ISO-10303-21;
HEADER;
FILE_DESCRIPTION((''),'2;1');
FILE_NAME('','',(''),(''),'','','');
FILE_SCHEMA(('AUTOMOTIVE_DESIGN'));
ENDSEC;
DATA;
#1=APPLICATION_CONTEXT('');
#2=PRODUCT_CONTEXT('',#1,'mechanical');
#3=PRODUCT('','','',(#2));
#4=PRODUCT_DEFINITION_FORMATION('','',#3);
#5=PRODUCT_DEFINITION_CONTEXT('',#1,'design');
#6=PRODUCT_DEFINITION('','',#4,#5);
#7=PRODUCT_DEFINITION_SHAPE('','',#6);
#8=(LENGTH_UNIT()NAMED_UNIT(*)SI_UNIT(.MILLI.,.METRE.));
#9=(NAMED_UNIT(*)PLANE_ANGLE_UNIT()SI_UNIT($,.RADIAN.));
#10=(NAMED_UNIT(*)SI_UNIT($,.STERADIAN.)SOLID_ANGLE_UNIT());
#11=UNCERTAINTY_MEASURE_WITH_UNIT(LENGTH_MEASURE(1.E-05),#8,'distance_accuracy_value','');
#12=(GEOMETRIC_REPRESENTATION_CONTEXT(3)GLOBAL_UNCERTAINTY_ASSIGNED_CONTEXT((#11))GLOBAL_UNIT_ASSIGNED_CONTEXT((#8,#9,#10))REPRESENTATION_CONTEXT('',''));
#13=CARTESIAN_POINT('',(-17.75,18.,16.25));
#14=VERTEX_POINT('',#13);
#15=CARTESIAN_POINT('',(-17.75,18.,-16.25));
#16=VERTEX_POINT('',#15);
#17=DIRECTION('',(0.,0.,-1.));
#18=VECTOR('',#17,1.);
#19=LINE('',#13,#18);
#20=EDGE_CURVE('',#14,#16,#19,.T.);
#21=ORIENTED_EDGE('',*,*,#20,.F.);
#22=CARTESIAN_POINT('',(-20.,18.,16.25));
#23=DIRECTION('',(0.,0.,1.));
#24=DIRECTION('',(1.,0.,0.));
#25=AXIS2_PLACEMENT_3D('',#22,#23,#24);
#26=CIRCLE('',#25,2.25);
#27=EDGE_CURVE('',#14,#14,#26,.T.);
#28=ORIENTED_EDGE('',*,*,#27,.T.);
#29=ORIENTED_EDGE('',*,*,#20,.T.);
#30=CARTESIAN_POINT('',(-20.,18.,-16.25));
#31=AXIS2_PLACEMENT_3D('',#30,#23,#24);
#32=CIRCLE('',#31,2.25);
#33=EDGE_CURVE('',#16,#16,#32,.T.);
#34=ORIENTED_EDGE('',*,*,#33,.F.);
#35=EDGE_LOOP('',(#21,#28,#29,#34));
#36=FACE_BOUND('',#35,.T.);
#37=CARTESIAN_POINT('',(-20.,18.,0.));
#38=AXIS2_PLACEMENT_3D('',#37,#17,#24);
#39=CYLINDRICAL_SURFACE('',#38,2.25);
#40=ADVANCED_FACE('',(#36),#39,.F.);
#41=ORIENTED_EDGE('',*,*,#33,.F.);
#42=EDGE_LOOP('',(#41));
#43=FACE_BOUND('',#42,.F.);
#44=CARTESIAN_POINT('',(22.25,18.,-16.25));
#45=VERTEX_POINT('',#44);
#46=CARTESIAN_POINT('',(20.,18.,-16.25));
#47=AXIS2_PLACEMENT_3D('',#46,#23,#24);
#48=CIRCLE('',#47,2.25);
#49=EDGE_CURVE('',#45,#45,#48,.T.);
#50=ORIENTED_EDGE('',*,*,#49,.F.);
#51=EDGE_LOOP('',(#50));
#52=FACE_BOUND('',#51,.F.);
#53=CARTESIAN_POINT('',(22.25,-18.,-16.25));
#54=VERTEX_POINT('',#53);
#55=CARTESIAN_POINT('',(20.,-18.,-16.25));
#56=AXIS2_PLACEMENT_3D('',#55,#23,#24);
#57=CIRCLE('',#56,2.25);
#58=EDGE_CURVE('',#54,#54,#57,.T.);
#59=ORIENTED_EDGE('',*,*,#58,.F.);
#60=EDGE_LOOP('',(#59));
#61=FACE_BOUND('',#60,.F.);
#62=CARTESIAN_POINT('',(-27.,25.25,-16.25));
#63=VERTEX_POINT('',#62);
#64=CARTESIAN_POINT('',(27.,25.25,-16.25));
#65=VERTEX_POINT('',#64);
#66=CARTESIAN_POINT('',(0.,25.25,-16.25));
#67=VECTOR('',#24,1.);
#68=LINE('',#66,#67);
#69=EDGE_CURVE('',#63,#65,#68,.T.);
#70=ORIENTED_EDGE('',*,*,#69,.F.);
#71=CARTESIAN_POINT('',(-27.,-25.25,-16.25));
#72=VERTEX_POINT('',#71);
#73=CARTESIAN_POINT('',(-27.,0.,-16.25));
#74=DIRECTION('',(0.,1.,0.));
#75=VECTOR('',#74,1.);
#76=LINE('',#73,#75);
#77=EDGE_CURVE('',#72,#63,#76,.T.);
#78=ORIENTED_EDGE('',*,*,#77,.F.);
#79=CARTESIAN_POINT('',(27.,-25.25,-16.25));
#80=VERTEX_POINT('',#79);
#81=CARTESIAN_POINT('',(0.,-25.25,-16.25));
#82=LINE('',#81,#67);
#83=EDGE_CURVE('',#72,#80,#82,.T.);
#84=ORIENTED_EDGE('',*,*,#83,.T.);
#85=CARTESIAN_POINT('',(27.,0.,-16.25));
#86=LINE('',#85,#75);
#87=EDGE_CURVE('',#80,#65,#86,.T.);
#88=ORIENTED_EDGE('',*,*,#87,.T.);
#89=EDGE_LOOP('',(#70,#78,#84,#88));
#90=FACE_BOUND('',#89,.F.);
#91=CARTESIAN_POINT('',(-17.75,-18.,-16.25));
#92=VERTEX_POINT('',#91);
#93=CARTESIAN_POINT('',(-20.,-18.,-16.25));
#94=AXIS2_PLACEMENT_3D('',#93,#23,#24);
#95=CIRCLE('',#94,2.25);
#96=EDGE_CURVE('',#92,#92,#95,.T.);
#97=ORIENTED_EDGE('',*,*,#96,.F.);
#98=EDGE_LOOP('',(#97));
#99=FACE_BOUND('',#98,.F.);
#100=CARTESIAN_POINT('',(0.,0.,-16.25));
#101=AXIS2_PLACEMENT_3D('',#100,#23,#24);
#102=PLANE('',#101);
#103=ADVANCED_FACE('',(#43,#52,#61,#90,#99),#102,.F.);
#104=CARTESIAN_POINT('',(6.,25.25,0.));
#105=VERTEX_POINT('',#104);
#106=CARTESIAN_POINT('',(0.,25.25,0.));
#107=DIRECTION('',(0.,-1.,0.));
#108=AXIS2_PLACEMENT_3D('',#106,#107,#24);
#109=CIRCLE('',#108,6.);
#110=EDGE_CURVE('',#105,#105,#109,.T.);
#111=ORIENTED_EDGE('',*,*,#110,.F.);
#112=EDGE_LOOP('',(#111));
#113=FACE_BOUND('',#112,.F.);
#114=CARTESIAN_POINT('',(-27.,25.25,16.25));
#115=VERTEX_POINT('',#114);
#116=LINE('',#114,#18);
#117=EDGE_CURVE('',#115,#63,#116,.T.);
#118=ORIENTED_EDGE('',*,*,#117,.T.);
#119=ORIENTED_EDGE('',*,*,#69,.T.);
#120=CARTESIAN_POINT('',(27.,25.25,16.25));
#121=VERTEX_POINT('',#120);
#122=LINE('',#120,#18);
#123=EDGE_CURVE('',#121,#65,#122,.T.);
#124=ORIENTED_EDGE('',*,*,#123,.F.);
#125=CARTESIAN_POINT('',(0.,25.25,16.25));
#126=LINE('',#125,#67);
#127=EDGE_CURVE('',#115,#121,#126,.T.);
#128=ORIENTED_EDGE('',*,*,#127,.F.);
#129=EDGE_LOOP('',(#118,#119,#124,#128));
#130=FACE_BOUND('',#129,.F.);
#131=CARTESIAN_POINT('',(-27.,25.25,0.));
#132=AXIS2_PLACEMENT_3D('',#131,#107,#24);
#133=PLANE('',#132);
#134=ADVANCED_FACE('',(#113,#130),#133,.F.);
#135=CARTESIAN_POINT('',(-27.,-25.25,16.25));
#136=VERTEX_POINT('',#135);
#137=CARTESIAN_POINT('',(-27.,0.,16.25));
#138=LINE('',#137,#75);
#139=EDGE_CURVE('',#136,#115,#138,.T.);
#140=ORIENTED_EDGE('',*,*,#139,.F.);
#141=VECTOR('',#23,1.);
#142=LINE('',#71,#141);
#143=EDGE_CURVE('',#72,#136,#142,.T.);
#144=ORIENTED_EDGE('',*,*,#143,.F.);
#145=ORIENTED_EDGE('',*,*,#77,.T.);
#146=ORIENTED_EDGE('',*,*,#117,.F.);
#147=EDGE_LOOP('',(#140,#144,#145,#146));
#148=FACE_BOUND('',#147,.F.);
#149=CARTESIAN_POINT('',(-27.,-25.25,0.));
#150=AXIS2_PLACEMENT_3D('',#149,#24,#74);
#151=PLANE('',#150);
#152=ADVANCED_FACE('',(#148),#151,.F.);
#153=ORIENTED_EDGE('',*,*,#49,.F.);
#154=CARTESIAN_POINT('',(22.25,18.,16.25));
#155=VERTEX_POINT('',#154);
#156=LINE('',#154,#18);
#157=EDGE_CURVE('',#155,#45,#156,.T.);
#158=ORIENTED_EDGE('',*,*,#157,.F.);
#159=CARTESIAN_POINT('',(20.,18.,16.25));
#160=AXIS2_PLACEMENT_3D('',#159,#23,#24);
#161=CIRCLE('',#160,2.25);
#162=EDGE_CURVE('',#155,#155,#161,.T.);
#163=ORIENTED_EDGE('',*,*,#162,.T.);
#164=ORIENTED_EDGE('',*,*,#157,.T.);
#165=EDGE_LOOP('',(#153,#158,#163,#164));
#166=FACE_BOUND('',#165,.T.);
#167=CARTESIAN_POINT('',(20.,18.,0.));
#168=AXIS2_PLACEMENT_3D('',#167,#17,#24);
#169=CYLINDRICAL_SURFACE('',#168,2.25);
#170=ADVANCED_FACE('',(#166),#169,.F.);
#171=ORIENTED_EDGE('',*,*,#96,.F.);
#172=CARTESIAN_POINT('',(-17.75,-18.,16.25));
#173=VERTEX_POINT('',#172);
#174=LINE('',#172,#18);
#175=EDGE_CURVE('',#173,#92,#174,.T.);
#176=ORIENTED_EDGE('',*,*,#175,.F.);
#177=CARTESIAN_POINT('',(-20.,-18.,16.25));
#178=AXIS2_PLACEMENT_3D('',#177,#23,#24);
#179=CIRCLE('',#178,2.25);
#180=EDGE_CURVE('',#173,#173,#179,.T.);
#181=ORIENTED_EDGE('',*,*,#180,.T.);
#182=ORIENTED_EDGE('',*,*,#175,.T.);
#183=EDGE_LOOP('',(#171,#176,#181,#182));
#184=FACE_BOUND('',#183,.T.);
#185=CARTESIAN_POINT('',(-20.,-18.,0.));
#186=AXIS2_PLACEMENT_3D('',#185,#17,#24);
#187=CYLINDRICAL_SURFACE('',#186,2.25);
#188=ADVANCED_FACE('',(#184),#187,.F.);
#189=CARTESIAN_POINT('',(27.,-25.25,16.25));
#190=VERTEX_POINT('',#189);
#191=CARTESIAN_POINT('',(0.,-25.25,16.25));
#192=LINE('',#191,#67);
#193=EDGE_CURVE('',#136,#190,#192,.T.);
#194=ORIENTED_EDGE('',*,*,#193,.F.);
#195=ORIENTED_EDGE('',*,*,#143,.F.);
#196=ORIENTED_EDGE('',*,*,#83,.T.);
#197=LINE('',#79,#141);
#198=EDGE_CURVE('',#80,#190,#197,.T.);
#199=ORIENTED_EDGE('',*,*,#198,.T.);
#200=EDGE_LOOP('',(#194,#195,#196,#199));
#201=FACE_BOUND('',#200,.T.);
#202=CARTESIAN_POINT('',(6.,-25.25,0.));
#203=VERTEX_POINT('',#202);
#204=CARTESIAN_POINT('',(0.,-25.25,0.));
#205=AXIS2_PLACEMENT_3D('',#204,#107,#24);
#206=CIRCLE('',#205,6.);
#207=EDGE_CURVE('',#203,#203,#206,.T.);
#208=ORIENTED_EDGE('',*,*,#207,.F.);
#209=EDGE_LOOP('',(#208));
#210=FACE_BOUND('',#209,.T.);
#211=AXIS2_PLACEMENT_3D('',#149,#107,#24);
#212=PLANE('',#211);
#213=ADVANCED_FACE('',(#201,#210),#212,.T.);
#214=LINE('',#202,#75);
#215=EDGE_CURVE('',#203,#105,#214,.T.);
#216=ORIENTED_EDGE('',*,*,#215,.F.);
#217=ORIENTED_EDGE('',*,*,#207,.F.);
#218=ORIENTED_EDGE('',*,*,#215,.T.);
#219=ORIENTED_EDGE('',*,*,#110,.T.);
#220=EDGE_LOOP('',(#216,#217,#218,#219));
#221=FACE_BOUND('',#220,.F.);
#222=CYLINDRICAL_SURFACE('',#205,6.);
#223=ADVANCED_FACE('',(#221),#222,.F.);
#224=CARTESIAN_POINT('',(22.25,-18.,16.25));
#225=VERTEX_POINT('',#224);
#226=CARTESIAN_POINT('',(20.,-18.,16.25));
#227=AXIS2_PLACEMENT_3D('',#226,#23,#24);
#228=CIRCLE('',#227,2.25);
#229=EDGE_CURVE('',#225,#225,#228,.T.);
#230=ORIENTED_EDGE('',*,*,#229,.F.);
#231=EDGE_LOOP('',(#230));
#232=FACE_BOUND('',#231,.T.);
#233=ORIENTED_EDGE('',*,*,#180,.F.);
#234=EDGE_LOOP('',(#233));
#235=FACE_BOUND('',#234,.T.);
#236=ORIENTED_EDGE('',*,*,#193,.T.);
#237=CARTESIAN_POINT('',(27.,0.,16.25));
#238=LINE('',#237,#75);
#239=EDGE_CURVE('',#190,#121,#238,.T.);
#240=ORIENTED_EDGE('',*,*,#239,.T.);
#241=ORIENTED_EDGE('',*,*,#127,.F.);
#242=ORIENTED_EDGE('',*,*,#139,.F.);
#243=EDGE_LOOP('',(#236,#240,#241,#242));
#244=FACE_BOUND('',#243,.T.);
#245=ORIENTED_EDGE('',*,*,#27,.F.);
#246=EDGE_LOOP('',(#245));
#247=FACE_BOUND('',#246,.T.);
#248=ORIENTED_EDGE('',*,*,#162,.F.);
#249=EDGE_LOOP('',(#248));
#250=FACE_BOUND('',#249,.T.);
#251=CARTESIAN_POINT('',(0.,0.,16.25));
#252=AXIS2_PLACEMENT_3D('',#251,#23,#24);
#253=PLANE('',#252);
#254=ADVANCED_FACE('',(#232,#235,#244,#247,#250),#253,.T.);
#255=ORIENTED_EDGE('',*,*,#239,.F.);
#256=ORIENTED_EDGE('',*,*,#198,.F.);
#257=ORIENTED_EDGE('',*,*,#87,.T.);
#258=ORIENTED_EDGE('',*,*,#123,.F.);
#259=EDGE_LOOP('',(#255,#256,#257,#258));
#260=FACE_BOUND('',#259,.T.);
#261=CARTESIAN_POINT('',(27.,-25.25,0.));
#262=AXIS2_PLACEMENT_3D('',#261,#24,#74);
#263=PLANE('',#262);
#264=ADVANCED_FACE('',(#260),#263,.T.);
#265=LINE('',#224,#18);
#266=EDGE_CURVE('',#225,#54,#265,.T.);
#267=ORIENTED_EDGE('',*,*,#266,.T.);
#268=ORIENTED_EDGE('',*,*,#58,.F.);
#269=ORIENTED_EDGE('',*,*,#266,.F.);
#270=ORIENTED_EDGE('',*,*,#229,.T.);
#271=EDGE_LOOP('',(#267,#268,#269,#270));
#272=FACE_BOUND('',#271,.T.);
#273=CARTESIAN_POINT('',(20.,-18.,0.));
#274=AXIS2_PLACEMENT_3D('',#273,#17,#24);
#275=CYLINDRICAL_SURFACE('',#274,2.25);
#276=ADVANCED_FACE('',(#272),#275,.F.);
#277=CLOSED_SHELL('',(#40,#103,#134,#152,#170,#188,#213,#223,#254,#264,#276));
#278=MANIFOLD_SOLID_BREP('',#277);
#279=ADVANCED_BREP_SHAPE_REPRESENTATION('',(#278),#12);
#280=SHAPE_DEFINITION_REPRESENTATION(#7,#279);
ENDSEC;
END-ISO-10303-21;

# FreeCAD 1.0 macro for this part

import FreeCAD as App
import Part
import Sketcher


def add_polygon(sketch, points):
    """Adds a closed chain of lines whose ends are joined by coincident constraints."""
    first, n = sketch.GeometryCount, len(points)
    for a, b in zip(points, points[1:] + points[:1]):
        sketch.addGeometry(Part.LineSegment(App.Vector(*a, 0), App.Vector(*b, 0)), False)
    for i in range(n):
        sketch.addConstraint(Sketcher.Constraint("Coincident", first + i, 2, first + (i + 1) % n, 1))

doc = App.newDocument("Part")
body = doc.addObject("PartDesign::Body", "Body")

# Sketch on XY plane
sketch1 = body.newObject("Sketcher::SketchObject", "Sketch")
sketch1.AttachmentSupport = (doc.getObject("XY_Plane"), [""])
sketch1.MapMode = "FlatFace"
add_polygon(sketch1, [(-27, 25.2), (-27, -25.2), (27, -25.2), (27, 25.2)])  # lines 0-3
sketch1.addGeometry(Part.Circle(App.Vector(-20, -18, 0), App.Vector(0, 0, 1), 2.2), False)  # 4
sketch1.addGeometry(Part.Circle(App.Vector(20, -18, 0), App.Vector(0, 0, 1), 2.2), False)  # 5
sketch1.addGeometry(Part.Circle(App.Vector(-20, 18, 0), App.Vector(0, 0, 1), 2.2), False)  # 6
sketch1.addGeometry(Part.Circle(App.Vector(20, 18, 0), App.Vector(0, 0, 1), 2.2), False)  # 7
sketch1.addConstraint([
    Sketcher.Constraint("Vertical", 0),
    Sketcher.Constraint("Horizontal", 1),
    Sketcher.Constraint("Vertical", 2),
    Sketcher.Constraint("Horizontal", 3),
    Sketcher.Constraint("Equal", 4, 5),
    Sketcher.Constraint("Equal", 5, 6),
    Sketcher.Constraint("Equal", 6, 7),
    Sketcher.Constraint("Symmetric", 5, 3, 6, 3, -1, 1),
    Sketcher.Constraint("Symmetric", 4, 3, 7, 3, -1, 1),
    Sketcher.Constraint("Symmetric", 0, 2, 2, 2, -1, 1),
    Sketcher.Constraint("Symmetric", 4, 3, 5, 3, -2),
    Sketcher.Constraint("Diameter", 4, 4.5),
    Sketcher.Constraint("DistanceX", 1, 1, 1, 2, 54.0),
    Sketcher.Constraint("DistanceY", 0, 2, 0, 1, 50.5),
    Sketcher.Constraint("DistanceX", 4, 3, -1, 1, 20.0),
    Sketcher.Constraint("DistanceY", 4, 3, -1, 1, 18.0),
])
pad1 = body.newObject("PartDesign::Pad", "Pad")
pad1.Profile = sketch1
pad1.Length = 32.5
pad1.Midplane = True

# Sketch on XZ plane
sketch2 = body.newObject("Sketcher::SketchObject", "Sketch001")
sketch2.AttachmentSupport = (doc.getObject("XZ_Plane"), [""])
sketch2.MapMode = "FlatFace"
sketch2.AttachmentOffset = App.Placement(App.Vector(0, 0, 25.25), App.Rotation())
sketch2.addGeometry(Part.Circle(App.Vector(0, 0, 0), App.Vector(0, 0, 1), 6), False)
sketch2.addConstraint([
    Sketcher.Constraint("Coincident", 0, 3, -1, 1),
    Sketcher.Constraint("Diameter", 0, 12.0),
])
pocket1 = body.newObject("PartDesign::Pocket", "Pocket")
pocket1.Profile = sketch2
pocket1.Length = 50.5

doc.recompute()
